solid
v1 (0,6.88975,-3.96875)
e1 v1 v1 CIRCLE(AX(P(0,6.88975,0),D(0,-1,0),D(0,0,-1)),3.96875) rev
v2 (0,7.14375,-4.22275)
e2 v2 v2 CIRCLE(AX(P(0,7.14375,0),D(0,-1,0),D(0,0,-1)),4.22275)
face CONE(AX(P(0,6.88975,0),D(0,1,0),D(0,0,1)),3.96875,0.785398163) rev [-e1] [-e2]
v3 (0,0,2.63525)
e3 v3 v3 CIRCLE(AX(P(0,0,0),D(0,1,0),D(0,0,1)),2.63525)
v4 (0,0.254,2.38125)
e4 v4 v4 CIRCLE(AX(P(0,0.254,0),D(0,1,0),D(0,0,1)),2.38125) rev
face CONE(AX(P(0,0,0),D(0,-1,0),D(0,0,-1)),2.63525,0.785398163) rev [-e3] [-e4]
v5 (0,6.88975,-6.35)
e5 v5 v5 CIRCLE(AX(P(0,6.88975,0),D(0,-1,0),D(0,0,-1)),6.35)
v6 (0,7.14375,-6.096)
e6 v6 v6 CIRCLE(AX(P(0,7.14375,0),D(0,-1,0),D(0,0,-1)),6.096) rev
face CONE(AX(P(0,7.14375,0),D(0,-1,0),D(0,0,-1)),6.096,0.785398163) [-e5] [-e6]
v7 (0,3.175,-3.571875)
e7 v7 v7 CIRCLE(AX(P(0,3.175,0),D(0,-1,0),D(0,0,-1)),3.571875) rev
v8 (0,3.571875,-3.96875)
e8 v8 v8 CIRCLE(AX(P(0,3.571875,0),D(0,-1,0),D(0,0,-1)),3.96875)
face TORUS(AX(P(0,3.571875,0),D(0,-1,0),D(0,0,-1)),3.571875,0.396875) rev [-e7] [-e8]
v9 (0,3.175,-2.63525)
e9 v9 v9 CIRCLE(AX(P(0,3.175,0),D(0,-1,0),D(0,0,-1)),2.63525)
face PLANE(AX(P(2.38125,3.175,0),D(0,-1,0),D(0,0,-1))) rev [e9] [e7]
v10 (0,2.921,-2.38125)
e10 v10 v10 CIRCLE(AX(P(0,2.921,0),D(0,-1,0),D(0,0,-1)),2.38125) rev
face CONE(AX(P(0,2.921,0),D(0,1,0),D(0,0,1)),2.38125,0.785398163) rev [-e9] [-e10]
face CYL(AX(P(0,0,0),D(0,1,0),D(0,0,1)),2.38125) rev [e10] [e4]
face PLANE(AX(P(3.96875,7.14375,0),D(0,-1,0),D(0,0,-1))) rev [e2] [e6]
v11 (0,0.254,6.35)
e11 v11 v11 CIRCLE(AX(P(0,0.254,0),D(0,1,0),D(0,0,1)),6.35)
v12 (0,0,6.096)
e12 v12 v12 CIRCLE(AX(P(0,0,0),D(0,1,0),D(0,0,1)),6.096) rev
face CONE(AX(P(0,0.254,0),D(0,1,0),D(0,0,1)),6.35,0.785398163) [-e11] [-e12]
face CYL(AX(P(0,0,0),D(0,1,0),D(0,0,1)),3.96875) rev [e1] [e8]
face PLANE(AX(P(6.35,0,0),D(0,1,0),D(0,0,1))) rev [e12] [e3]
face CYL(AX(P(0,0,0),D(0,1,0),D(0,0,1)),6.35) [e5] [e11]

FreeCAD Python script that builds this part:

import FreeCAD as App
import Part
import Sketcher

V = App.Vector
Q = App.Units.Quantity


def edges_at(feature, points):
    """Names of the edges that pass closest to the given points."""
    edges = feature.Shape.Edges
    near = lambda p: min(range(len(edges)), key=lambda i: edges[i].distToShape(Part.Vertex(*p))[0])
    return sorted({f"Edge{near(p) + 1}" for p in points})

doc = App.newDocument("Part")
params = doc.addObject("Spreadsheet::Sheet", "Params")
for row, (alias, value) in enumerate([
    ("sketch1_width", "0.15625 in"),
    ("sketch1_width2", "0.09375 in"),
    ("sketch1_height", "0.125 in"),
    ("revolution_angle", "360 deg"),
    ("fillet_radius", "0.015625 in"),
    ("chamfer_size", "0.01 in"),
], start=1):
    params.set(f"A{row}", alias)
    params.set(f"B{row}", "=" + value)
    params.setAlias(f"B{row}", alias)

body = doc.addObject("PartDesign::Body", "Body")

sketch1 = body.newObject("Sketcher::SketchObject", "Sketch")
sketch1.AttachmentSupport = (doc.getObject("XY_Plane"), [""])
sketch1.MapMode = "FlatFace"
sketch1.addGeometry([
    Part.LineSegment(V(2.4, 3.2, 0), V(2.4, 0, 0)),
    Part.LineSegment(V(2.4, 0, 0), V(6.3, 0, 0)),
    Part.LineSegment(V(6.3, 0, 0), V(6.3, 7.1, 0)),
    Part.LineSegment(V(6.3, 7.1, 0), V(4, 7.1, 0)),
    Part.LineSegment(V(4, 7.1, 0), V(4, 3.2, 0)),
    Part.LineSegment(V(4, 3.2, 0), V(2.4, 3.2, 0)),
], False)
sketch1.addConstraint([
    Sketcher.Constraint("Coincident", 0, 2, 1, 1),
    Sketcher.Constraint("Coincident", 1, 2, 2, 1),
    Sketcher.Constraint("Coincident", 2, 2, 3, 1),
    Sketcher.Constraint("Coincident", 3, 2, 4, 1),
    Sketcher.Constraint("Coincident", 4, 2, 5, 1),
    Sketcher.Constraint("Coincident", 5, 2, 0, 1),
    Sketcher.Constraint("Vertical", 0),
    Sketcher.Constraint("Horizontal", 1),
    Sketcher.Constraint("Vertical", 2),
    Sketcher.Constraint("Horizontal", 3),
    Sketcher.Constraint("Vertical", 4),
    Sketcher.Constraint("Horizontal", 5),
    Sketcher.Constraint("PointOnObject", 0, 2, -1),
    Sketcher.Constraint("Equal", 1, 4),
    Sketcher.Constraint("DistanceX", 1, 1, 1, 2, Q("0.15625 in")),
    Sketcher.Constraint("DistanceX", 3, 2, 3, 1, Q("0.09375 in")),
    Sketcher.Constraint("DistanceY", 0, 2, 0, 1, Q("0.125 in")),
    Sketcher.Constraint("DistanceX", -1, 1, 1, 2, Q("0.25 in")),
])
sketch1.setExpression("Constraints[14]", "Params.sketch1_width")
sketch1.setExpression("Constraints[15]", "Params.sketch1_width2")
sketch1.setExpression("Constraints[16]", "Params.sketch1_height")
revolution = body.newObject("PartDesign::Revolution", "Revolution")
revolution.Profile = sketch1
revolution.ReferenceAxis = (sketch1, ["V_Axis"])
revolution.setExpression("Angle", "Params.revolution_angle")
doc.recompute()

fillet = body.newObject("PartDesign::Fillet", "Fillet")
fillet.Base = (revolution, edges_at(revolution, [(-3.969, 3.175, 0)]))
fillet.setExpression("Radius", "Params.fillet_radius")
doc.recompute()

chamfer = body.newObject("PartDesign::Chamfer", "Chamfer")
chamfer.Base = (fillet, edges_at(fillet, [
    (-6.35, 0, 0),
    (-6.35, 7.144, 0),
    (-3.969, 7.144, 0),
    (-2.381, 3.175, 0),
    (-2.381, 0, 0),
]))
chamfer.setExpression("Size", "Params.chamfer_size")

doc.recompute()
